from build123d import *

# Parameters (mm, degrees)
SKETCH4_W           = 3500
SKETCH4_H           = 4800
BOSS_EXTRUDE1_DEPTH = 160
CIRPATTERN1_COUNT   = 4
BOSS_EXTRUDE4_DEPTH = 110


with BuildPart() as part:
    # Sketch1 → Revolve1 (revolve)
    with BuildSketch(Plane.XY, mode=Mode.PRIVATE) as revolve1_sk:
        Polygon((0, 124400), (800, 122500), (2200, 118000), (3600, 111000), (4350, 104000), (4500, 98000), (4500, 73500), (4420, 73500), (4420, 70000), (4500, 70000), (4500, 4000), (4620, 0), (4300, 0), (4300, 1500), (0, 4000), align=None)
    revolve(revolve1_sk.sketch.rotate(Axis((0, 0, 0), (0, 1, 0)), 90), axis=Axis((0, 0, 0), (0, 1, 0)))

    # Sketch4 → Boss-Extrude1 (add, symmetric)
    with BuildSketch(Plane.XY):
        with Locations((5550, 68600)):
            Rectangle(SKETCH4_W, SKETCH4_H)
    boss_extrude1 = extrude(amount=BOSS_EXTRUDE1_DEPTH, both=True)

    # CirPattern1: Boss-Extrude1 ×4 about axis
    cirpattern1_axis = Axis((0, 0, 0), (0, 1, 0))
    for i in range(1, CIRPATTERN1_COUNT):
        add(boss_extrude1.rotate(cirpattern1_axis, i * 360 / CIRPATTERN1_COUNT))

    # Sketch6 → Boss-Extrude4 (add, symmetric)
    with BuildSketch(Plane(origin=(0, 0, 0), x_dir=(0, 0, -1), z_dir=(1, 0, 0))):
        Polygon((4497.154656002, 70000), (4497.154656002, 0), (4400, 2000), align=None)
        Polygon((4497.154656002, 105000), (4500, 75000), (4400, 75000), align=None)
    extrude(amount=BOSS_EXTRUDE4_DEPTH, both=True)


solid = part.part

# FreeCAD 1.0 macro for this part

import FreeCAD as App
import Part
import Sketcher


def add_polygon(sketch, points):
    """Adds a closed chain of lines whose ends are joined by coincident constraints."""
    first, n = sketch.GeometryCount, len(points)
    for a, b in zip(points, points[1:] + points[:1]):
        sketch.addGeometry(Part.LineSegment(App.Vector(*a, 0), App.Vector(*b, 0)), False)
    for i in range(n):
        sketch.addConstraint(Sketcher.Constraint("Coincident", first + i, 2, first + (i + 1) % n, 1))

doc = App.newDocument("Part")
body = doc.addObject("PartDesign::Body", "Body")

sketch1 = doc.addObject("Sketcher::SketchObject", "Sketch")
body.addObject(sketch1)
sketch1.AttachmentSupport = (doc.XY_Plane, [""])
sketch1.MapMode = "FlatFace"
add_polygon(sketch1, [(800, 122500), (0, 124400), (0, 4000), (4300, 1500), (4300, 0), (4620, 0), (4500, 4000), (4500, 70000), (4420, 70000), (4420, 73500), (4500, 73500), (4500, 98000), (4350, 104000), (3600, 111000), (2200, 118000)])
sketch1.addConstraint(Sketcher.Constraint("Vertical", 1))
sketch1.addConstraint(Sketcher.Constraint("Vertical", 3))
sketch1.addConstraint(Sketcher.Constraint("Horizontal", 4))
sketch1.addConstraint(Sketcher.Constraint("Vertical", 6))
sketch1.addConstraint(Sketcher.Constraint("Horizontal", 7))
sketch1.addConstraint(Sketcher.Constraint("Vertical", 8))
sketch1.addConstraint(Sketcher.Constraint("Horizontal", 9))
sketch1.addConstraint(Sketcher.Constraint("Vertical", 10))
sketch1.addConstraint(Sketcher.Constraint("PointOnObject", 0, 2, -2))
sketch1.addConstraint(Sketcher.Constraint("PointOnObject", 3, 2, -1))
sketch1.addConstraint(Sketcher.Constraint("Horizontal", 1, 2, 5, 2))
sketch1.addConstraint(Sketcher.Constraint("Vertical", 6, 2, 9, 2))
sketch1.addConstraint(Sketcher.Constraint("DistanceX", 4, 1, 4, 2, 320.0))
sketch1.addConstraint(Sketcher.Constraint("DistanceX", 7, 2, 7, 1, 80.0))
sketch1.addConstraint(Sketcher.Constraint("DistanceY", 1, 2, 1, 1, 120400.0))
sketch1.addConstraint(Sketcher.Constraint("DistanceY", 3, 2, 3, 1, 1500.0))
sketch1.addConstraint(Sketcher.Constraint("DistanceY", 6, 1, 6, 2, 66000.0))
sketch1.addConstraint(Sketcher.Constraint("DistanceY", 8, 1, 8, 2, 3500.0))
sketch1.addConstraint(Sketcher.Constraint("DistanceY", 10, 1, 10, 2, 24500.0))
sketch1.addConstraint(Sketcher.Constraint("DistanceY", -1, 1, 0, 2, 124400.0))
sketch1.addConstraint(Sketcher.Constraint("DistanceX", -1, 1, 2, 2, 4300.0))
sketch1.addConstraint(Sketcher.Constraint("DistanceX", -1, 1, 5, 2, 4500.0))
sketch1.addConstraint(Sketcher.Constraint("DistanceX", -1, 1, 11, 2, 4350.0))
sketch1.addConstraint(Sketcher.Constraint("DistanceY", -1, 1, 11, 2, 104000.0))
sketch1.addConstraint(Sketcher.Constraint("DistanceX", -1, 1, 12, 2, 3600.0))
sketch1.addConstraint(Sketcher.Constraint("DistanceY", -1, 1, 12, 2, 111000.0))
sketch1.addConstraint(Sketcher.Constraint("DistanceX", -1, 1, 13, 2, 2200.0))
sketch1.addConstraint(Sketcher.Constraint("DistanceY", -1, 1, 13, 2, 118000.0))
sketch1.addConstraint(Sketcher.Constraint("DistanceX", -1, 1, 14, 2, 800.0))
sketch1.addConstraint(Sketcher.Constraint("DistanceY", -1, 1, 14, 2, 122500.0))
revolution = doc.addObject("PartDesign::Revolution", "Revolution")
body.addObject(revolution)
revolution.Profile = sketch1
revolution.ReferenceAxis = (sketch1, ["V_Axis"])
revolution.Angle = 360

sketch2 = doc.addObject("Sketcher::SketchObject", "Sketch001")
body.addObject(sketch2)
sketch2.AttachmentSupport = (doc.XY_Plane, [""])
sketch2.MapMode = "FlatFace"
add_polygon(sketch2, [(3800, 71000), (3800, 66200), (7300, 66200), (7300, 71000)])
sketch2.addConstraint(Sketcher.Constraint("Vertical", 0))
sketch2.addConstraint(Sketcher.Constraint("Horizontal", 1))
sketch2.addConstraint(Sketcher.Constraint("Vertical", 2))
sketch2.addConstraint(Sketcher.Constraint("Horizontal", 3))
sketch2.addConstraint(Sketcher.Constraint("DistanceX", 1, 1, 1, 2, 3500.0))
sketch2.addConstraint(Sketcher.Constraint("DistanceY", 0, 2, 0, 1, 4800.0))
sketch2.addConstraint(Sketcher.Constraint("DistanceX", -1, 1, 0, 2, 3800.0))
sketch2.addConstraint(Sketcher.Constraint("DistanceY", -1, 1, 0, 2, 66200.0))
pad1 = doc.addObject("PartDesign::Pad", "Pad")
body.addObject(pad1)
pad1.Profile = sketch2
pad1.Length = 320
pad1.Midplane = True
doc.recompute()

polarpattern = doc.addObject("PartDesign::PolarPattern", "PolarPattern")
body.addObject(polarpattern)
polarpattern.Originals = [pad1]
polarpattern.Axis = (doc.Y_Axis, [""])
polarpattern.Angle = 360
polarpattern.Occurrences = 4
body.Tip = polarpattern

sketch3 = doc.addObject("Sketcher::SketchObject", "Sketch002")
body.addObject(sketch3)
sketch3.AttachmentSupport = (doc.YZ_Plane, [""])
sketch3.MapMode = "FlatFace"
add_polygon(sketch3, [(0, -4497), (70000, -4497), (2000, -4400)])
add_polygon(sketch3, [(75000, -4500), (105000, -4497), (75000, -4400)])
sketch3.addConstraint(Sketcher.Constraint("Horizontal", 0))
sketch3.addConstraint(Sketcher.Constraint("Vertical", 5))
sketch3.addConstraint(Sketcher.Constraint("PointOnObject", 2, 2, -2))
sketch3.addConstraint(Sketcher.Constraint("Horizontal", 2, 2, 3, 2))
sketch3.addConstraint(Sketcher.Constraint("Horizontal", 1, 2, 4, 2))
sketch3.addConstraint(Sketcher.Constraint("DistanceX", 0, 1, 0, 2, 70000.0))
sketch3.addConstraint(Sketcher.Constraint("DistanceY", 5, 2, 5, 1, 100.0))
sketch3.addConstraint(Sketcher.Constraint("DistanceX", -1, 1, 1, 2, 2000.0))
sketch3.addConstraint(Sketcher.Constraint("DistanceY", 1, 2, -1, 1, 4400.0))
sketch3.addConstraint(Sketcher.Constraint("DistanceX", -1, 1, 3, 2, 105000.0))
sketch3.addConstraint(Sketcher.Constraint("DistanceX", -1, 1, 4, 2, 75000.0))
sketch3.addConstraint(Sketcher.Constraint("Distance", 2, 2002.358366))
pad2 = doc.addObject("PartDesign::Pad", "Pad001")
body.addObject(pad2)
pad2.Profile = sketch3
pad2.Length = 220
pad2.Midplane = True

doc.recompute()
